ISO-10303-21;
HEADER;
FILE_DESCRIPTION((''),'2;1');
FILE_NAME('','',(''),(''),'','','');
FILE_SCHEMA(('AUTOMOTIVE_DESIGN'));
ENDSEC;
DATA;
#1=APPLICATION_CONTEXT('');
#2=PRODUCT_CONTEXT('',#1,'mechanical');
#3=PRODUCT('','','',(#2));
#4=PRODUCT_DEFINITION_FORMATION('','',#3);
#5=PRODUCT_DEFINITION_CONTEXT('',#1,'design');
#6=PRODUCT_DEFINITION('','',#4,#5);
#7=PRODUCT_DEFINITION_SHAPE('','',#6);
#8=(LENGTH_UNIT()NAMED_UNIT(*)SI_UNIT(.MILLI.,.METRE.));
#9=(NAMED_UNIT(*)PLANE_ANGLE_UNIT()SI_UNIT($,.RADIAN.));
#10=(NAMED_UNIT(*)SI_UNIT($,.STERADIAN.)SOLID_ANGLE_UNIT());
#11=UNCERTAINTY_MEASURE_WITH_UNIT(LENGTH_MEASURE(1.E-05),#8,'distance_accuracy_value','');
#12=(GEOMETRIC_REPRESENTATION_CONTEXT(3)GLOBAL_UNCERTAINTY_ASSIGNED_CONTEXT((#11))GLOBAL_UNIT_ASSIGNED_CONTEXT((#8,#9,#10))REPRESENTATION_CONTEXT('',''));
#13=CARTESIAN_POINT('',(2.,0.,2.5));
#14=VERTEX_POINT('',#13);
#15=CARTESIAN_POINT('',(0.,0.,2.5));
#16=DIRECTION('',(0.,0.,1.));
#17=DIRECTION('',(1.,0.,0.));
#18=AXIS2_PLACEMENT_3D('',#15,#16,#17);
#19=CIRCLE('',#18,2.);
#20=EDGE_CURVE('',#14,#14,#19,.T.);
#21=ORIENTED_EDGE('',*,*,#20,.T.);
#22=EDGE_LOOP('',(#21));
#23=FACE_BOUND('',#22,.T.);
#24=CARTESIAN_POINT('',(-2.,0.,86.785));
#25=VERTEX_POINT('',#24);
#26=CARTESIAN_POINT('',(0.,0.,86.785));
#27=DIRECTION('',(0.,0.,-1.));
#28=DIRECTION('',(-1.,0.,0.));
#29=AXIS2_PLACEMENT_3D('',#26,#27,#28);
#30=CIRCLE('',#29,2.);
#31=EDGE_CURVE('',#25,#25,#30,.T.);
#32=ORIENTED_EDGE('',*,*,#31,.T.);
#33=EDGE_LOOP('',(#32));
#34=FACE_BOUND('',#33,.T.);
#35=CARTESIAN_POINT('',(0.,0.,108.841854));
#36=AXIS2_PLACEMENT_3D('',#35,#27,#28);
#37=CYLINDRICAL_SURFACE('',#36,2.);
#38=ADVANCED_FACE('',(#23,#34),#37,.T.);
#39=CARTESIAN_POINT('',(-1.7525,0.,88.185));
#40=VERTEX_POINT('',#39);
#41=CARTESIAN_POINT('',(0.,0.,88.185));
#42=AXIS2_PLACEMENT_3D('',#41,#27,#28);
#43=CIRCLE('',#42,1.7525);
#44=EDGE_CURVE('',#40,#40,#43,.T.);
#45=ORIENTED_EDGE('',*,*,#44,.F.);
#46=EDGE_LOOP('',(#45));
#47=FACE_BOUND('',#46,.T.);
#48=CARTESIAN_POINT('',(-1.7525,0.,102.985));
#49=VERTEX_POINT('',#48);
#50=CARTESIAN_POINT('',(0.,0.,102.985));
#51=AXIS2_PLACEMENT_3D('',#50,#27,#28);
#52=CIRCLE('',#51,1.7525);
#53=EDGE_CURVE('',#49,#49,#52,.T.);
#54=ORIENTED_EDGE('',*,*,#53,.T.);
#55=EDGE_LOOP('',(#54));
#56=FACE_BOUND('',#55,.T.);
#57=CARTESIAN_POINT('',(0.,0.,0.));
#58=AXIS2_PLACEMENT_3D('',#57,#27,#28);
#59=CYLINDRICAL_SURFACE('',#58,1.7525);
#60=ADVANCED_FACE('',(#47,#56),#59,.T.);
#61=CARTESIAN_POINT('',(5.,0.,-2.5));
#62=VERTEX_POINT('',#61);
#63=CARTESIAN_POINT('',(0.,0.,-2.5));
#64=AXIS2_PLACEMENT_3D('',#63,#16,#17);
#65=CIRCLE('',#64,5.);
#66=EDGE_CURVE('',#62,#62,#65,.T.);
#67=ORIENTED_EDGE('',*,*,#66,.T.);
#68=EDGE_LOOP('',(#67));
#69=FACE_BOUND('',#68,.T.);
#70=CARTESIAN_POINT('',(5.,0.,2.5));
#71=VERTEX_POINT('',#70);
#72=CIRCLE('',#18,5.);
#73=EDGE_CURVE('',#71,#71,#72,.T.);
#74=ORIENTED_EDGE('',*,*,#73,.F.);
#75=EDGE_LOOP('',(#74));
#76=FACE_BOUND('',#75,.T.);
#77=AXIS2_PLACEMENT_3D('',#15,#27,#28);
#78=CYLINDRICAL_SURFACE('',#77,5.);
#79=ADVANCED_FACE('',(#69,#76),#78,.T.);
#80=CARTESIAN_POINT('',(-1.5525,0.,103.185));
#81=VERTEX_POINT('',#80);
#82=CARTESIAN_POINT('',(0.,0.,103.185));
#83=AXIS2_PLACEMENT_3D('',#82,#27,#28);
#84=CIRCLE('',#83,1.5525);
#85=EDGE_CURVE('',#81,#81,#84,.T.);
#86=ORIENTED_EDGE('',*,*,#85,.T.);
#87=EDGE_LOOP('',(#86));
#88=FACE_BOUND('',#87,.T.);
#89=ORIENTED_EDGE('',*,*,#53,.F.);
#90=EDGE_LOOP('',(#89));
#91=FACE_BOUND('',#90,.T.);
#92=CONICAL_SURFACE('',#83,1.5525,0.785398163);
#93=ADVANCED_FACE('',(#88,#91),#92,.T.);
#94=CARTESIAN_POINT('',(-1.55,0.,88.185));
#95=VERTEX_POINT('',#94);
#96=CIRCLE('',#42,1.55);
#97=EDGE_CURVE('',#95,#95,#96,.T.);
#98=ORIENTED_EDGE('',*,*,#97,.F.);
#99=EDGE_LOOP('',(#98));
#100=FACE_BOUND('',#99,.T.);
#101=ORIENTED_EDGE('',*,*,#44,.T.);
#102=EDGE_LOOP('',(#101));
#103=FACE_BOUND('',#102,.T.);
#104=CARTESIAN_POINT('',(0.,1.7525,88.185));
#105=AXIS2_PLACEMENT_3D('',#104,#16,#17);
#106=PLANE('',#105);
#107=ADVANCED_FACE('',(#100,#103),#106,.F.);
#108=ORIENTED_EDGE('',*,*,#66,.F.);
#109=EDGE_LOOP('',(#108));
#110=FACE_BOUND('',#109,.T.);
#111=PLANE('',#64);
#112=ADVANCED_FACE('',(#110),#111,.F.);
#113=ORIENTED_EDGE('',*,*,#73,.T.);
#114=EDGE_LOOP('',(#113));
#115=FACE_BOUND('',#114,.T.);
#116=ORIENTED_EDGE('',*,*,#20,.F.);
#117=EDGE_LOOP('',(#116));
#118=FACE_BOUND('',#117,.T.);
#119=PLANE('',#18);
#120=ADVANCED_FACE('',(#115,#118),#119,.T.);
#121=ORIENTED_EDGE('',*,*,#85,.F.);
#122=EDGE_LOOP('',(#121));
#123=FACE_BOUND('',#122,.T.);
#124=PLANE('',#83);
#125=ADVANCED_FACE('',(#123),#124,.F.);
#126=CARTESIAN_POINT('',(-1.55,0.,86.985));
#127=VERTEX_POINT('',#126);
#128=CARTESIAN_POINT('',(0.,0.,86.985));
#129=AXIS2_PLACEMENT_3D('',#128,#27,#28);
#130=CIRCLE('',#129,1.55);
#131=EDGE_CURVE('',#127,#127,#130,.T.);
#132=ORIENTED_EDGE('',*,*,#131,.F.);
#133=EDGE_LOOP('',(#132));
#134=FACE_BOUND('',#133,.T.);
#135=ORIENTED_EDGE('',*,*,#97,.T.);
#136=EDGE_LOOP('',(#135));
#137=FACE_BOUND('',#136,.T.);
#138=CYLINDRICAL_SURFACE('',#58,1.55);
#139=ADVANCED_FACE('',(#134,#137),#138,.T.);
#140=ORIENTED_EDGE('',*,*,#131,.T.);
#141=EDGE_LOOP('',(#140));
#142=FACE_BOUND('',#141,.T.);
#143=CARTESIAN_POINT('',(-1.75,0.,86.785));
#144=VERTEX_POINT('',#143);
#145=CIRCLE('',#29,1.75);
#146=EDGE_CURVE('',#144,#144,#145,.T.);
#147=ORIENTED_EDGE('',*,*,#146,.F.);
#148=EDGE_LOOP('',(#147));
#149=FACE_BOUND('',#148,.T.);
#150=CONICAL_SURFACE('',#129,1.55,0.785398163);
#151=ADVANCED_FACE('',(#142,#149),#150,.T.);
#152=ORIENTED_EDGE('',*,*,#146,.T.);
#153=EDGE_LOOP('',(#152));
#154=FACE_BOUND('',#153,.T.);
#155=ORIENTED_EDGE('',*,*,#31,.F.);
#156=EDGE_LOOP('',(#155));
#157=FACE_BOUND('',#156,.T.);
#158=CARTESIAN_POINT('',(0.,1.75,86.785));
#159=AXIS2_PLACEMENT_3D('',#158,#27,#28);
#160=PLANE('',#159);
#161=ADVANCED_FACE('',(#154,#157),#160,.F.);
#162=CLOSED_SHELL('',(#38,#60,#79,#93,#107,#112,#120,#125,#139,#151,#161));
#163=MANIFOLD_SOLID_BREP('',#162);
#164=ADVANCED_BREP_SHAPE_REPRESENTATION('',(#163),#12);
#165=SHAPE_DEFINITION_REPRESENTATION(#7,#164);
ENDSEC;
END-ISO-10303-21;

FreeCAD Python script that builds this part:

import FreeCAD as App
import Part
import Sketcher
from FreeCAD import Vector
Q = App.Units.Quantity


def add_polygon(sketch, points):
    """Adds a closed chain of lines whose ends are joined by coincident constraints."""
    first, n = sketch.GeometryCount, len(points)
    for a, b in zip(points, points[1:] + points[:1]):
        sketch.addGeometry(Part.LineSegment(App.Vector(*a, 0), App.Vector(*b, 0)), False)
    for i in range(n):
        sketch.addConstraint(Sketcher.Constraint("Coincident", first + i, 2, first + (i + 1) % n, 1))

doc = App.newDocument("Part")
body = doc.addObject("PartDesign::Body", "Body")

sketch1 = body.newObject("Sketcher::SketchObject", "Sketch")
sketch1.AttachmentSupport = (doc.getObject("XY_Plane"), [""])
sketch1.MapMode = "FlatFace"
sketch1.addGeometry(Part.Circle(Vector(0, 0, 0), Vector(0, 0, 1), 2), False)
sketch1.addConstraint(Sketcher.Constraint("Coincident", 0, 3, -1, 1))
sketch1.addConstraint(Sketcher.Constraint("Diameter", 0, 4.0))
pad1 = body.newObject("PartDesign::Pad", "Pad")
pad1.Profile = sketch1
pad1.Length = 103.185

sketch2 = body.newObject("Sketcher::SketchObject", "Sketch001")
sketch2.AttachmentSupport = (doc.getObject("XY_Plane"), [""])
sketch2.MapMode = "FlatFace"
sketch2.addGeometry(Part.Circle(Vector(0, 0, 0), Vector(0, 0, 1), 5), False)
sketch2.addConstraint(Sketcher.Constraint("Coincident", 0, 3, -1, 1))
sketch2.addConstraint(Sketcher.Constraint("Diameter", 0, 10.0))
pad2 = body.newObject("PartDesign::Pad", "Pad001")
pad2.Profile = sketch2
pad2.Length = 5
pad2.Midplane = True

sketch3 = body.newObject("Sketcher::SketchObject", "Sketch002")
sketch3.AttachmentSupport = (doc.getObject("YZ_Plane"), [""])
sketch3.MapMode = "FlatFace"
add_polygon(sketch3, [(1.55, 103.19), (1.75, 102.98), (1.75, 88.19), (1.55, 88.19), (1.55, 86.98), (1.75, 86.78), (5, 86.78), (5, 103.19)])
sketch3.addConstraint(Sketcher.Constraint("Vertical", 1))
sketch3.addConstraint(Sketcher.Constraint("Horizontal", 2))
sketch3.addConstraint(Sketcher.Constraint("Vertical", 3))
sketch3.addConstraint(Sketcher.Constraint("Horizontal", 5))
sketch3.addConstraint(Sketcher.Constraint("Vertical", 6))
sketch3.addConstraint(Sketcher.Constraint("Horizontal", 7))
sketch3.addConstraint(Sketcher.Constraint("Parallel", 0, 4))
sketch3.addConstraint(Sketcher.Constraint("Equal", 0, 4))
sketch3.addConstraint(Sketcher.Constraint("Angle", 0, Q("-45 deg")))
sketch3.addConstraint(Sketcher.Constraint("DistanceY", 1, 2, 1, 1, 14.8))
sketch3.addConstraint(Sketcher.Constraint("DistanceY", 3, 2, 3, 1, 1.2))
sketch3.addConstraint(Sketcher.Constraint("DistanceY", 6, 1, 6, 2, 16.4))
sketch3.addConstraint(Sketcher.Constraint("DistanceX", -1, 1, 5, 2, 5.0))
sketch3.addConstraint(Sketcher.Constraint("DistanceX", 5, 1, 5, 2, 3.25))
sketch3.addConstraint(Sketcher.Constraint("DistanceX", 2, 2, 2, 1, 0.2025))
sketch3.addConstraint(Sketcher.Constraint("DistanceY", -1, 1, 0, 2, 102.985))
groove = body.newObject("PartDesign::Groove", "Groove")
groove.Profile = sketch3
groove.ReferenceAxis = (sketch3, ["V_Axis"])
groove.Angle = 360

doc.recompute()
